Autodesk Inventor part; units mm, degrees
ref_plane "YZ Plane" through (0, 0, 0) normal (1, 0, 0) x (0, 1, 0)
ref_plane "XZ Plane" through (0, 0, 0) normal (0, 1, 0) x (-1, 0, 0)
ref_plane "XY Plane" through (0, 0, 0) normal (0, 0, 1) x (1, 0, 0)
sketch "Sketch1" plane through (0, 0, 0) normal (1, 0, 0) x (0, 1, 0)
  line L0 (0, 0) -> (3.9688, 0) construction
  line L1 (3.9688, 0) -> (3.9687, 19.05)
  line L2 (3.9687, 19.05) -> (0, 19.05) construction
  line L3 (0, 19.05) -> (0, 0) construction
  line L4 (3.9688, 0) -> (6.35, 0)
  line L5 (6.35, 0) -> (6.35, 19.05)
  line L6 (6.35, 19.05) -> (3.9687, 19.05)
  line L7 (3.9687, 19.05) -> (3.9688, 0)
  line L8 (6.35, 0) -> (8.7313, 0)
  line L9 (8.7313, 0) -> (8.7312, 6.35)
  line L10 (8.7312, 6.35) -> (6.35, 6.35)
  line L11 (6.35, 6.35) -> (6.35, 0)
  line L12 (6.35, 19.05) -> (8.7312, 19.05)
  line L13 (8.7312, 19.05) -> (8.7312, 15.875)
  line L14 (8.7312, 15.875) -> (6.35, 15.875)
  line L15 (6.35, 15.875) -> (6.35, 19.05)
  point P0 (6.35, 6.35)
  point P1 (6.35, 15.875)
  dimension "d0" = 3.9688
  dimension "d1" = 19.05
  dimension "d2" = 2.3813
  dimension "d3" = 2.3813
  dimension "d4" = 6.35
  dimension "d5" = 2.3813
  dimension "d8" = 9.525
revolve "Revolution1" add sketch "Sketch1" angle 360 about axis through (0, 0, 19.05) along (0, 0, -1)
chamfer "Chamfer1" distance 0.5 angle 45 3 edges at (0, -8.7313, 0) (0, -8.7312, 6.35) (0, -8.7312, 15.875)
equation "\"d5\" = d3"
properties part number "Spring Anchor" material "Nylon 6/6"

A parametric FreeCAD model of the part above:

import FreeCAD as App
import Part
import Sketcher

V = App.Vector
Q = App.Units.Quantity


def edges_at(feature, points):
    """Names of the edges that pass closest to the given points."""
    edges = feature.Shape.Edges
    near = lambda p: min(range(len(edges)), key=lambda i: edges[i].distToShape(Part.Vertex(*p))[0])
    return sorted({f"Edge{near(p) + 1}" for p in points})


def add_polygon(sketch, points):
    """Adds a closed chain of lines whose ends are joined by coincident constraints."""
    first, n = sketch.GeometryCount, len(points)
    for a, b in zip(points, points[1:] + points[:1]):
        sketch.addGeometry(Part.LineSegment(App.Vector(*a, 0), App.Vector(*b, 0)), False)
    for i in range(n):
        sketch.addConstraint(Sketcher.Constraint("Coincident", first + i, 2, first + (i + 1) % n, 1))

doc = App.newDocument("Part")
body = doc.addObject("PartDesign::Body", "Body")

# Sketch on YZ plane
sketch1 = body.newObject("Sketcher::SketchObject", "Sketch")
sketch1.AttachmentSupport = (doc.getObject("YZ_Plane"), [""])
sketch1.MapMode = "FlatFace"
add_polygon(sketch1, [(4, 19.1), (4, 0), (8.7, 0), (8.7, 6.3), (6.3, 6.3), (6.3, 15.9), (8.7, 15.9), (8.7, 19.1)])  # lines 0-7
sketch1.addConstraint([
    Sketcher.Constraint("Vertical", 0),
    Sketcher.Constraint("Horizontal", 1),
    Sketcher.Constraint("Vertical", 2),
    Sketcher.Constraint("Horizontal", 3),
    Sketcher.Constraint("Vertical", 4),
    Sketcher.Constraint("Horizontal", 5),
    Sketcher.Constraint("Vertical", 6),
    Sketcher.Constraint("Horizontal", 7),
    Sketcher.Constraint("PointOnObject", 0, 2, -1),
    Sketcher.Constraint("Vertical", 2, 2, 5, 2),
    Sketcher.Constraint("DistanceY", 0, 2, 0, 1, Q("0.75 in")),
    Sketcher.Constraint("DistanceY", 2, 1, 2, 2, Q("0.25 in")),
    Sketcher.Constraint("DistanceX", 3, 2, 3, 1, Q("0.093748 in")),
    Sketcher.Constraint("DistanceY", 4, 1, 4, 2, Q("0.375 in")),
    Sketcher.Constraint("DistanceX", -1, 1, 3, 2, Q("0.25 in")),
    Sketcher.Constraint("DistanceX", -1, 1, 0, 2, Q("0.156252 in")),
])
revolution = body.newObject("PartDesign::Revolution", "Revolution")
revolution.Profile = sketch1
revolution.ReferenceAxis = (sketch1, ["V_Axis"])
revolution.Angle = 360
doc.recompute()

chamfer = body.newObject("PartDesign::Chamfer", "Chamfer")
chamfer.Base = (revolution, edges_at(revolution, [(0, -8.731, 0), (0, -8.731, 6.35), (0, -8.731, 15.875)]))
chamfer.Size = 0.5

doc.recompute()
